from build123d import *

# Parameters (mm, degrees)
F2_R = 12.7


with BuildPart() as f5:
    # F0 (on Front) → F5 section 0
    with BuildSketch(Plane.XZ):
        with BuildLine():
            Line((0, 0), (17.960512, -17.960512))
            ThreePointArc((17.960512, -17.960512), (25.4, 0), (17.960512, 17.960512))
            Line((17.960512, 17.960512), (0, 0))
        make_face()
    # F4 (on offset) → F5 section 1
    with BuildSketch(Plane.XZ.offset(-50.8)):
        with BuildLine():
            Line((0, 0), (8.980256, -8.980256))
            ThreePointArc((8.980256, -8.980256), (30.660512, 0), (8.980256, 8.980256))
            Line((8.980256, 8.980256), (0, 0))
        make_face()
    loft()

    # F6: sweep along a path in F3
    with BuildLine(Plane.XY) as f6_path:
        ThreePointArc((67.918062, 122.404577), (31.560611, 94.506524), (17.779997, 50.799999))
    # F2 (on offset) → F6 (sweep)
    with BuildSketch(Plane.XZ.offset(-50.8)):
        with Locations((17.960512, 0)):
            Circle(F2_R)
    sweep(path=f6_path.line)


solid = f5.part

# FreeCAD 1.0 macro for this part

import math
import FreeCAD as App
import Part
import Sketcher
Q = App.Units.Quantity

doc = App.newDocument("Part")
params = doc.addObject("Spreadsheet::Sheet", "Params")
for row, (alias, value) in enumerate([
    ("sketch1_radius", "1 in"),
    ("sketch2_radius", "0.5 in"),
    ("sketch3_diameter", "1 in"),
    ("sketch4_radius", "2.9999999 in"),
], start=1):
    params.set(f"A{row}", alias)
    params.set(f"B{row}", "=" + value)
    params.setAlias(f"B{row}", alias)

body = doc.addObject("PartDesign::Body", "Body")

# Sketch on XZ plane
sketch1 = body.newObject("Sketcher::SketchObject", "Sketch")
sketch1.AttachmentSupport = (doc.getObject("XZ_Plane"), [""])
sketch1.MapMode = "FlatFace"
sketch1.addGeometry([
    Part.LineSegment(App.Vector(0, 0, 0), App.Vector(18, -18, 0)),
    Part.ArcOfCircle(Part.Circle(App.Vector(0, 0, 0), App.Vector(0, 0, 1), 25), math.radians(-45), math.radians(45)),
    Part.LineSegment(App.Vector(18, 18, 0), App.Vector(0, 0, 0)),
], False)
sketch1.addConstraint([
    Sketcher.Constraint("Coincident", 0, 2, 1, 1),
    Sketcher.Constraint("Coincident", 1, 2, 2, 1),
    Sketcher.Constraint("Coincident", 2, 2, 0, 1),
    Sketcher.Constraint("Coincident", 1, 3, -1, 1),
    Sketcher.Constraint("Coincident", 2, 2, -1, 1),
    Sketcher.Constraint("Perpendicular", 0, 2),
    Sketcher.Constraint("Vertical", 0, 2, 1, 2),
    Sketcher.Constraint("Radius", 1, Q("1 in")),
])
sketch1.setExpression("Constraints[7]", "Params.sketch1_radius")

# Sketch on XZ plane
sketch2 = body.newObject("Sketcher::SketchObject", "Sketch001")
sketch2.AttachmentSupport = (doc.getObject("XZ_Plane"), [""])
sketch2.MapMode = "FlatFace"
sketch2.AttachmentOffset = App.Placement(App.Vector(0, 0, -2 * 25.4), App.Rotation())
sketch2.addGeometry([
    Part.LineSegment(App.Vector(0, 0, 0), App.Vector(9, -9, 0)),
    Part.ArcOfCircle(Part.Circle(App.Vector(18, 0, 0), App.Vector(0, 0, 1), 13), math.radians(-135), math.radians(135)),
    Part.LineSegment(App.Vector(9, 9, 0), App.Vector(0, 0, 0)),
], False)
sketch2.addConstraint([
    Sketcher.Constraint("Tangent", 0, 2, 1, 1),
    Sketcher.Constraint("Tangent", 1, 2, 2, 1),
    Sketcher.Constraint("Coincident", 2, 2, 0, 1),
    Sketcher.Constraint("Coincident", 2, 2, -1, 1),
    Sketcher.Constraint("PointOnObject", 1, 3, -1),
    Sketcher.Constraint("Perpendicular", 0, 2),
    Sketcher.Constraint("Radius", 1, Q("0.5 in")),
])
sketch2.setExpression("Constraints[6]", "Params.sketch2_radius")

additiveloft = body.newObject("PartDesign::AdditiveLoft", "AdditiveLoft")
additiveloft.Profile = sketch1
additiveloft.Sections = [sketch2]

# Sketch on XZ plane
sketch3 = body.newObject("Sketcher::SketchObject", "Sketch002")
sketch3.AttachmentSupport = (doc.getObject("XZ_Plane"), [""])
sketch3.MapMode = "FlatFace"
sketch3.AttachmentOffset = App.Placement(App.Vector(0, 0, -2 * 25.4), App.Rotation())
sketch3.addGeometry(Part.Circle(App.Vector(18, 0, 0), App.Vector(0, 0, 1), 13), False)
sketch3.addConstraint([
    Sketcher.Constraint("PointOnObject", 0, 3, -1),
    Sketcher.Constraint("Diameter", 0, Q("1 in")),
    Sketcher.Constraint("DistanceX", -1, 1, 0, 3, Q("17.960512 mm")),
])
sketch3.setExpression("Constraints[1]", "Params.sketch3_diameter")

# Sketch on XY plane
sketch4 = body.newObject("Sketcher::SketchObject", "Sketch003")
sketch4.AttachmentSupport = (doc.getObject("XY_Plane"), [""])
sketch4.MapMode = "FlatFace"
sketch4.addGeometry(Part.ArcOfCircle(Part.Circle(App.Vector(94, 51, 0), App.Vector(0, 0, 1), 76), math.radians(110), math.radians(180)), False)
sketch4.addConstraint([
    Sketcher.Constraint("Radius", 0, Q("2.9999999 in")),
    Sketcher.Constraint("DistanceY", -1, 1, 0, 3, Q("2 in")),
    Sketcher.Constraint("DistanceY", -1, 1, 0, 2, Q("2 in")),
    Sketcher.Constraint("DistanceX", -1, 1, 0, 3, Q("3.6999998 in")),
    Sketcher.Constraint("DistanceX", -1, 1, 0, 1, Q("67.918062 mm")),
])
sketch4.setExpression("Constraints[0]", "Params.sketch4_radius")
doc.recompute()

additivepipe = body.newObject("PartDesign::AdditivePipe", "AdditivePipe")
additivepipe.Profile = sketch3
additivepipe.Spine = (sketch4, ["Edge1"])

doc.recompute()
